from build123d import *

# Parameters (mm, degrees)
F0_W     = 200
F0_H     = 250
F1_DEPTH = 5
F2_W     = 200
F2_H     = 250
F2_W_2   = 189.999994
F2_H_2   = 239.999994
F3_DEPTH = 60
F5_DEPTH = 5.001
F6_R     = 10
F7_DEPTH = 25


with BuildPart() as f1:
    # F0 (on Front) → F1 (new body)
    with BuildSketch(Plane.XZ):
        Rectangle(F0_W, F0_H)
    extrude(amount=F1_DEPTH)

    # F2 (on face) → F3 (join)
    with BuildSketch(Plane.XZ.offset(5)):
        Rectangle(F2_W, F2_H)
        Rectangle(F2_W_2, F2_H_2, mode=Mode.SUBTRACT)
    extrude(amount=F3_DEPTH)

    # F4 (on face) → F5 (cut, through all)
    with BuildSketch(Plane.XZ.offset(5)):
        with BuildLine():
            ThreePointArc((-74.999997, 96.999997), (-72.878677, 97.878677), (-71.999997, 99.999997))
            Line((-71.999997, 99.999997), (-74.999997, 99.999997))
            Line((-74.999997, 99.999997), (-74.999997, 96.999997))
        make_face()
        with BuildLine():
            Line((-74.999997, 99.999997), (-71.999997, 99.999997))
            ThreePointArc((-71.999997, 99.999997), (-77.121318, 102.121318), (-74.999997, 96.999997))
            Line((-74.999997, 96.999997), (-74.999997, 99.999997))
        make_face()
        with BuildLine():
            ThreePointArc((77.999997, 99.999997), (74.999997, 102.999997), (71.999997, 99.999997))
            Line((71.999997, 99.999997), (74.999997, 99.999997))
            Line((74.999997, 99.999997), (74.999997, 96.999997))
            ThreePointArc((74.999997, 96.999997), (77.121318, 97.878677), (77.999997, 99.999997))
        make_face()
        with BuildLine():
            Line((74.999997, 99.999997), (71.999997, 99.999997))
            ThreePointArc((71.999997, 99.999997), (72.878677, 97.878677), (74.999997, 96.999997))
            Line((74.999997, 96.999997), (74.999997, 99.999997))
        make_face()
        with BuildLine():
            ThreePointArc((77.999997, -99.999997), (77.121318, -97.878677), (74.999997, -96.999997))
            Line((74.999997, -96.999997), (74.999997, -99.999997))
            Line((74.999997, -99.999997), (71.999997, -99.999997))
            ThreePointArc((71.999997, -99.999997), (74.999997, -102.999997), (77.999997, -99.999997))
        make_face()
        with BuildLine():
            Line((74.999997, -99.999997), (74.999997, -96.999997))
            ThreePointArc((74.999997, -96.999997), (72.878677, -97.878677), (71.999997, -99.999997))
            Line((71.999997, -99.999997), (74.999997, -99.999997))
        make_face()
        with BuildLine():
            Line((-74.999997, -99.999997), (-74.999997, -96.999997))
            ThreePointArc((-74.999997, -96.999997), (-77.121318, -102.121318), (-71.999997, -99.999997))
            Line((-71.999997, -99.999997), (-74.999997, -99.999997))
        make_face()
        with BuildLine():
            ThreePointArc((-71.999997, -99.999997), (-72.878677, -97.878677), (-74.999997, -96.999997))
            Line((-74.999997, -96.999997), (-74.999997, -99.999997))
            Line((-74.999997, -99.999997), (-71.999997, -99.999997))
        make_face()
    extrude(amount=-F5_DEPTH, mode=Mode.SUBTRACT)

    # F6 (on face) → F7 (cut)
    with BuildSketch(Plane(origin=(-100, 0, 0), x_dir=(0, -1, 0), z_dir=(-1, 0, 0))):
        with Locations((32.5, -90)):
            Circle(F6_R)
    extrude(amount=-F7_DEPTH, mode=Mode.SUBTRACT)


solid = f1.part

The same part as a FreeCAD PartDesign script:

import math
import FreeCAD as App
import Part
import Sketcher
from FreeCAD import Vector
Q = App.Units.Quantity


def add_polygon(sketch, points):
    """Adds a closed chain of lines whose ends are joined by coincident constraints."""
    first, n = sketch.GeometryCount, len(points)
    for a, b in zip(points, points[1:] + points[:1]):
        sketch.addGeometry(Part.LineSegment(App.Vector(*a, 0), App.Vector(*b, 0)), False)
    for i in range(n):
        sketch.addConstraint(Sketcher.Constraint("Coincident", first + i, 2, first + (i + 1) % n, 1))

doc = App.newDocument("Part")
body = doc.addObject("PartDesign::Body", "Body")

# Sketch on XZ plane
sketch1 = body.newObject("Sketcher::SketchObject", "Sketch")
sketch1.AttachmentSupport = (doc.getObject("XZ_Plane"), [""])
sketch1.MapMode = "FlatFace"
add_polygon(sketch1, [(-100, 125), (-100, -125), (100, -125), (100, 125)])  # lines 0-3
sketch1.addConstraint([
    Sketcher.Constraint("Vertical", 0),
    Sketcher.Constraint("Horizontal", 1),
    Sketcher.Constraint("Vertical", 2),
    Sketcher.Constraint("Horizontal", 3),
    Sketcher.Constraint("Symmetric", 0, 2, 2, 2, -1, 1),
    Sketcher.Constraint("DistanceX", 1, 1, 1, 2, Q("200 mm")),
    Sketcher.Constraint("DistanceY", 0, 2, 0, 1, Q("250 mm")),
])
pad1 = body.newObject("PartDesign::Pad", "Pad")
pad1.Profile = sketch1
pad1.Length = 5

# Sketch on XZ plane
sketch2 = body.newObject("Sketcher::SketchObject", "Sketch001")
sketch2.AttachmentSupport = (doc.getObject("XZ_Plane"), [""])
sketch2.MapMode = "FlatFace"
sketch2.AttachmentOffset = App.Placement(Vector(0, 0, 5), App.Rotation())
add_polygon(sketch2, [(-100, 125), (-100, -125), (100, -125), (100, 125)])  # lines 0-3
add_polygon(sketch2, [(95, -120), (-95, -120), (-95, 120), (95, 120)])  # lines 4-7
sketch2.addConstraint([
    Sketcher.Constraint("Vertical", 0),
    Sketcher.Constraint("Horizontal", 1),
    Sketcher.Constraint("Vertical", 2),
    Sketcher.Constraint("Horizontal", 3),
    Sketcher.Constraint("Horizontal", 4),
    Sketcher.Constraint("Vertical", 5),
    Sketcher.Constraint("Horizontal", 6),
    Sketcher.Constraint("Vertical", 7),
    Sketcher.Constraint("Symmetric", 0, 2, 2, 2, -1, 1),
    Sketcher.Constraint("Symmetric", 4, 2, 6, 2, -1, 1),
    Sketcher.Constraint("DistanceX", 1, 1, 1, 2, Q("200 mm")),
    Sketcher.Constraint("DistanceY", 0, 2, 0, 1, Q("250 mm")),
    Sketcher.Constraint("DistanceX", 4, 2, 4, 1, Q("189.999994 mm")),
    Sketcher.Constraint("DistanceY", 5, 1, 5, 2, Q("239.999994 mm")),
])
pad2 = body.newObject("PartDesign::Pad", "Pad001")
pad2.Profile = sketch2
pad2.Length = 60

# Sketch on XZ plane
sketch3 = body.newObject("Sketcher::SketchObject", "Sketch002")
sketch3.AttachmentSupport = (doc.getObject("XZ_Plane"), [""])
sketch3.MapMode = "FlatFace"
sketch3.AttachmentOffset = App.Placement(Vector(0, 0, 5), App.Rotation())
sketch3.addGeometry([
    Part.ArcOfCircle(Part.Circle(Vector(-75, 100, 0), Vector(0, 0, 1), 3), math.radians(-90), math.radians(0)),  # 0
    Part.ArcOfCircle(Part.Circle(Vector(-75, 100, 0), Vector(0, 0, 1), 3), math.radians(0), math.radians(270)),  # 1
    Part.ArcOfCircle(Part.Circle(Vector(75, 100, 0), Vector(0, 0, 1), 3), math.radians(0), math.radians(180)),  # 2
    Part.ArcOfCircle(Part.Circle(Vector(75, 100, 0), Vector(0, 0, 1), 3), math.radians(-180), math.radians(-90)),  # 3
    Part.ArcOfCircle(Part.Circle(Vector(75, 100, 0), Vector(0, 0, 1), 3), math.radians(-90), math.radians(0)),  # 4
    Part.ArcOfCircle(Part.Circle(Vector(75, -100, 0), Vector(0, 0, 1), 3), math.radians(0), math.radians(90)),  # 5
    Part.ArcOfCircle(Part.Circle(Vector(75, -100, 0), Vector(0, 0, 1), 3), math.radians(90), math.radians(180)),  # 6
    Part.ArcOfCircle(Part.Circle(Vector(75, -100, 0), Vector(0, 0, 1), 3), math.radians(180), math.radians(360)),  # 7
    Part.ArcOfCircle(Part.Circle(Vector(-75, -100, 0), Vector(0, 0, 1), 3), math.radians(90), math.radians(360)),  # 8
    Part.ArcOfCircle(Part.Circle(Vector(-75, -100, 0), Vector(0, 0, 1), 3), math.radians(0), math.radians(90)),  # 9
], False)
sketch3.addConstraint([
    Sketcher.Constraint("Tangent", 0, 1, 1, 2),
    Sketcher.Constraint("Coincident", 1, 1, 0, 2),
    Sketcher.Constraint("Tangent", 2, 2, 3, 1),
    Sketcher.Constraint("Tangent", 3, 2, 4, 1),
    Sketcher.Constraint("Tangent", 4, 2, 2, 1),
    Sketcher.Constraint("Tangent", 5, 2, 6, 1),
    Sketcher.Constraint("Tangent", 6, 2, 7, 1),
    Sketcher.Constraint("Tangent", 7, 2, 5, 1),
    Sketcher.Constraint("Tangent", 8, 1, 9, 2),
    Sketcher.Constraint("Coincident", 9, 1, 8, 2),
    Sketcher.Constraint("Equal", 1, 2),
    Sketcher.Constraint("Equal", 4, 5),
    Sketcher.Constraint("Equal", 7, 8),
    Sketcher.Constraint("Symmetric", 0, 3, 5, 3, -1, 1),
    Sketcher.Constraint("Symmetric", 2, 3, 8, 3, -1, 1),
    Sketcher.Constraint("Symmetric", 0, 3, 2, 3, -2),
    Sketcher.Constraint("Horizontal", 4, 3, 1, 1),
    Sketcher.Constraint("Horizontal", 1, 1, 2, 2),
    Sketcher.Constraint("Horizontal", 2, 2, 4, 2),
    Sketcher.Constraint("Horizontal", 9, 3, 6, 2),
    Sketcher.Constraint("Horizontal", 6, 2, 7, 2),
    Sketcher.Constraint("Horizontal", 7, 2, 9, 1),
    Sketcher.Constraint("Vertical", 9, 3, 0, 1),
    Sketcher.Constraint("Vertical", 7, 3, 3, 2),
    Sketcher.Constraint("Vertical", 3, 2, 5, 2),
    Sketcher.Constraint("Vertical", 0, 1, 8, 1),
    Sketcher.Constraint("Radius", 0, Q("3.000001 mm")),
    Sketcher.Constraint("DistanceX", 0, 3, -1, 1, Q("74.999998 mm")),
    Sketcher.Constraint("DistanceY", -1, 1, 0, 3, Q("99.999998 mm")),
])
pocket1 = body.newObject("PartDesign::Pocket", "Pocket")
pocket1.Profile = sketch3
pocket1.Type = "ThroughAll"

# Sketch on YZ plane
sketch4 = body.newObject("Sketcher::SketchObject", "Sketch003")
sketch4.AttachmentSupport = (doc.getObject("YZ_Plane"), [""])
sketch4.MapMode = "FlatFace"
sketch4.AttachmentOffset = App.Placement(Vector(0, 0, -100), App.Rotation())
sketch4.addGeometry(Part.Circle(Vector(-32, -90, 0), Vector(0, 0, 1), 10), False)
sketch4.addConstraint([
    Sketcher.Constraint("Diameter", 0, Q("20 mm")),
    Sketcher.Constraint("DistanceY", 0, 3, -1, 1, Q("90 mm")),
    Sketcher.Constraint("DistanceX", 0, 3, -1, 1, Q("32.5 mm")),
])
pocket2 = body.newObject("PartDesign::Pocket", "Pocket001")
pocket2.Profile = sketch4
pocket2.Length = 25
pocket2.Reversed = True

doc.recompute()
